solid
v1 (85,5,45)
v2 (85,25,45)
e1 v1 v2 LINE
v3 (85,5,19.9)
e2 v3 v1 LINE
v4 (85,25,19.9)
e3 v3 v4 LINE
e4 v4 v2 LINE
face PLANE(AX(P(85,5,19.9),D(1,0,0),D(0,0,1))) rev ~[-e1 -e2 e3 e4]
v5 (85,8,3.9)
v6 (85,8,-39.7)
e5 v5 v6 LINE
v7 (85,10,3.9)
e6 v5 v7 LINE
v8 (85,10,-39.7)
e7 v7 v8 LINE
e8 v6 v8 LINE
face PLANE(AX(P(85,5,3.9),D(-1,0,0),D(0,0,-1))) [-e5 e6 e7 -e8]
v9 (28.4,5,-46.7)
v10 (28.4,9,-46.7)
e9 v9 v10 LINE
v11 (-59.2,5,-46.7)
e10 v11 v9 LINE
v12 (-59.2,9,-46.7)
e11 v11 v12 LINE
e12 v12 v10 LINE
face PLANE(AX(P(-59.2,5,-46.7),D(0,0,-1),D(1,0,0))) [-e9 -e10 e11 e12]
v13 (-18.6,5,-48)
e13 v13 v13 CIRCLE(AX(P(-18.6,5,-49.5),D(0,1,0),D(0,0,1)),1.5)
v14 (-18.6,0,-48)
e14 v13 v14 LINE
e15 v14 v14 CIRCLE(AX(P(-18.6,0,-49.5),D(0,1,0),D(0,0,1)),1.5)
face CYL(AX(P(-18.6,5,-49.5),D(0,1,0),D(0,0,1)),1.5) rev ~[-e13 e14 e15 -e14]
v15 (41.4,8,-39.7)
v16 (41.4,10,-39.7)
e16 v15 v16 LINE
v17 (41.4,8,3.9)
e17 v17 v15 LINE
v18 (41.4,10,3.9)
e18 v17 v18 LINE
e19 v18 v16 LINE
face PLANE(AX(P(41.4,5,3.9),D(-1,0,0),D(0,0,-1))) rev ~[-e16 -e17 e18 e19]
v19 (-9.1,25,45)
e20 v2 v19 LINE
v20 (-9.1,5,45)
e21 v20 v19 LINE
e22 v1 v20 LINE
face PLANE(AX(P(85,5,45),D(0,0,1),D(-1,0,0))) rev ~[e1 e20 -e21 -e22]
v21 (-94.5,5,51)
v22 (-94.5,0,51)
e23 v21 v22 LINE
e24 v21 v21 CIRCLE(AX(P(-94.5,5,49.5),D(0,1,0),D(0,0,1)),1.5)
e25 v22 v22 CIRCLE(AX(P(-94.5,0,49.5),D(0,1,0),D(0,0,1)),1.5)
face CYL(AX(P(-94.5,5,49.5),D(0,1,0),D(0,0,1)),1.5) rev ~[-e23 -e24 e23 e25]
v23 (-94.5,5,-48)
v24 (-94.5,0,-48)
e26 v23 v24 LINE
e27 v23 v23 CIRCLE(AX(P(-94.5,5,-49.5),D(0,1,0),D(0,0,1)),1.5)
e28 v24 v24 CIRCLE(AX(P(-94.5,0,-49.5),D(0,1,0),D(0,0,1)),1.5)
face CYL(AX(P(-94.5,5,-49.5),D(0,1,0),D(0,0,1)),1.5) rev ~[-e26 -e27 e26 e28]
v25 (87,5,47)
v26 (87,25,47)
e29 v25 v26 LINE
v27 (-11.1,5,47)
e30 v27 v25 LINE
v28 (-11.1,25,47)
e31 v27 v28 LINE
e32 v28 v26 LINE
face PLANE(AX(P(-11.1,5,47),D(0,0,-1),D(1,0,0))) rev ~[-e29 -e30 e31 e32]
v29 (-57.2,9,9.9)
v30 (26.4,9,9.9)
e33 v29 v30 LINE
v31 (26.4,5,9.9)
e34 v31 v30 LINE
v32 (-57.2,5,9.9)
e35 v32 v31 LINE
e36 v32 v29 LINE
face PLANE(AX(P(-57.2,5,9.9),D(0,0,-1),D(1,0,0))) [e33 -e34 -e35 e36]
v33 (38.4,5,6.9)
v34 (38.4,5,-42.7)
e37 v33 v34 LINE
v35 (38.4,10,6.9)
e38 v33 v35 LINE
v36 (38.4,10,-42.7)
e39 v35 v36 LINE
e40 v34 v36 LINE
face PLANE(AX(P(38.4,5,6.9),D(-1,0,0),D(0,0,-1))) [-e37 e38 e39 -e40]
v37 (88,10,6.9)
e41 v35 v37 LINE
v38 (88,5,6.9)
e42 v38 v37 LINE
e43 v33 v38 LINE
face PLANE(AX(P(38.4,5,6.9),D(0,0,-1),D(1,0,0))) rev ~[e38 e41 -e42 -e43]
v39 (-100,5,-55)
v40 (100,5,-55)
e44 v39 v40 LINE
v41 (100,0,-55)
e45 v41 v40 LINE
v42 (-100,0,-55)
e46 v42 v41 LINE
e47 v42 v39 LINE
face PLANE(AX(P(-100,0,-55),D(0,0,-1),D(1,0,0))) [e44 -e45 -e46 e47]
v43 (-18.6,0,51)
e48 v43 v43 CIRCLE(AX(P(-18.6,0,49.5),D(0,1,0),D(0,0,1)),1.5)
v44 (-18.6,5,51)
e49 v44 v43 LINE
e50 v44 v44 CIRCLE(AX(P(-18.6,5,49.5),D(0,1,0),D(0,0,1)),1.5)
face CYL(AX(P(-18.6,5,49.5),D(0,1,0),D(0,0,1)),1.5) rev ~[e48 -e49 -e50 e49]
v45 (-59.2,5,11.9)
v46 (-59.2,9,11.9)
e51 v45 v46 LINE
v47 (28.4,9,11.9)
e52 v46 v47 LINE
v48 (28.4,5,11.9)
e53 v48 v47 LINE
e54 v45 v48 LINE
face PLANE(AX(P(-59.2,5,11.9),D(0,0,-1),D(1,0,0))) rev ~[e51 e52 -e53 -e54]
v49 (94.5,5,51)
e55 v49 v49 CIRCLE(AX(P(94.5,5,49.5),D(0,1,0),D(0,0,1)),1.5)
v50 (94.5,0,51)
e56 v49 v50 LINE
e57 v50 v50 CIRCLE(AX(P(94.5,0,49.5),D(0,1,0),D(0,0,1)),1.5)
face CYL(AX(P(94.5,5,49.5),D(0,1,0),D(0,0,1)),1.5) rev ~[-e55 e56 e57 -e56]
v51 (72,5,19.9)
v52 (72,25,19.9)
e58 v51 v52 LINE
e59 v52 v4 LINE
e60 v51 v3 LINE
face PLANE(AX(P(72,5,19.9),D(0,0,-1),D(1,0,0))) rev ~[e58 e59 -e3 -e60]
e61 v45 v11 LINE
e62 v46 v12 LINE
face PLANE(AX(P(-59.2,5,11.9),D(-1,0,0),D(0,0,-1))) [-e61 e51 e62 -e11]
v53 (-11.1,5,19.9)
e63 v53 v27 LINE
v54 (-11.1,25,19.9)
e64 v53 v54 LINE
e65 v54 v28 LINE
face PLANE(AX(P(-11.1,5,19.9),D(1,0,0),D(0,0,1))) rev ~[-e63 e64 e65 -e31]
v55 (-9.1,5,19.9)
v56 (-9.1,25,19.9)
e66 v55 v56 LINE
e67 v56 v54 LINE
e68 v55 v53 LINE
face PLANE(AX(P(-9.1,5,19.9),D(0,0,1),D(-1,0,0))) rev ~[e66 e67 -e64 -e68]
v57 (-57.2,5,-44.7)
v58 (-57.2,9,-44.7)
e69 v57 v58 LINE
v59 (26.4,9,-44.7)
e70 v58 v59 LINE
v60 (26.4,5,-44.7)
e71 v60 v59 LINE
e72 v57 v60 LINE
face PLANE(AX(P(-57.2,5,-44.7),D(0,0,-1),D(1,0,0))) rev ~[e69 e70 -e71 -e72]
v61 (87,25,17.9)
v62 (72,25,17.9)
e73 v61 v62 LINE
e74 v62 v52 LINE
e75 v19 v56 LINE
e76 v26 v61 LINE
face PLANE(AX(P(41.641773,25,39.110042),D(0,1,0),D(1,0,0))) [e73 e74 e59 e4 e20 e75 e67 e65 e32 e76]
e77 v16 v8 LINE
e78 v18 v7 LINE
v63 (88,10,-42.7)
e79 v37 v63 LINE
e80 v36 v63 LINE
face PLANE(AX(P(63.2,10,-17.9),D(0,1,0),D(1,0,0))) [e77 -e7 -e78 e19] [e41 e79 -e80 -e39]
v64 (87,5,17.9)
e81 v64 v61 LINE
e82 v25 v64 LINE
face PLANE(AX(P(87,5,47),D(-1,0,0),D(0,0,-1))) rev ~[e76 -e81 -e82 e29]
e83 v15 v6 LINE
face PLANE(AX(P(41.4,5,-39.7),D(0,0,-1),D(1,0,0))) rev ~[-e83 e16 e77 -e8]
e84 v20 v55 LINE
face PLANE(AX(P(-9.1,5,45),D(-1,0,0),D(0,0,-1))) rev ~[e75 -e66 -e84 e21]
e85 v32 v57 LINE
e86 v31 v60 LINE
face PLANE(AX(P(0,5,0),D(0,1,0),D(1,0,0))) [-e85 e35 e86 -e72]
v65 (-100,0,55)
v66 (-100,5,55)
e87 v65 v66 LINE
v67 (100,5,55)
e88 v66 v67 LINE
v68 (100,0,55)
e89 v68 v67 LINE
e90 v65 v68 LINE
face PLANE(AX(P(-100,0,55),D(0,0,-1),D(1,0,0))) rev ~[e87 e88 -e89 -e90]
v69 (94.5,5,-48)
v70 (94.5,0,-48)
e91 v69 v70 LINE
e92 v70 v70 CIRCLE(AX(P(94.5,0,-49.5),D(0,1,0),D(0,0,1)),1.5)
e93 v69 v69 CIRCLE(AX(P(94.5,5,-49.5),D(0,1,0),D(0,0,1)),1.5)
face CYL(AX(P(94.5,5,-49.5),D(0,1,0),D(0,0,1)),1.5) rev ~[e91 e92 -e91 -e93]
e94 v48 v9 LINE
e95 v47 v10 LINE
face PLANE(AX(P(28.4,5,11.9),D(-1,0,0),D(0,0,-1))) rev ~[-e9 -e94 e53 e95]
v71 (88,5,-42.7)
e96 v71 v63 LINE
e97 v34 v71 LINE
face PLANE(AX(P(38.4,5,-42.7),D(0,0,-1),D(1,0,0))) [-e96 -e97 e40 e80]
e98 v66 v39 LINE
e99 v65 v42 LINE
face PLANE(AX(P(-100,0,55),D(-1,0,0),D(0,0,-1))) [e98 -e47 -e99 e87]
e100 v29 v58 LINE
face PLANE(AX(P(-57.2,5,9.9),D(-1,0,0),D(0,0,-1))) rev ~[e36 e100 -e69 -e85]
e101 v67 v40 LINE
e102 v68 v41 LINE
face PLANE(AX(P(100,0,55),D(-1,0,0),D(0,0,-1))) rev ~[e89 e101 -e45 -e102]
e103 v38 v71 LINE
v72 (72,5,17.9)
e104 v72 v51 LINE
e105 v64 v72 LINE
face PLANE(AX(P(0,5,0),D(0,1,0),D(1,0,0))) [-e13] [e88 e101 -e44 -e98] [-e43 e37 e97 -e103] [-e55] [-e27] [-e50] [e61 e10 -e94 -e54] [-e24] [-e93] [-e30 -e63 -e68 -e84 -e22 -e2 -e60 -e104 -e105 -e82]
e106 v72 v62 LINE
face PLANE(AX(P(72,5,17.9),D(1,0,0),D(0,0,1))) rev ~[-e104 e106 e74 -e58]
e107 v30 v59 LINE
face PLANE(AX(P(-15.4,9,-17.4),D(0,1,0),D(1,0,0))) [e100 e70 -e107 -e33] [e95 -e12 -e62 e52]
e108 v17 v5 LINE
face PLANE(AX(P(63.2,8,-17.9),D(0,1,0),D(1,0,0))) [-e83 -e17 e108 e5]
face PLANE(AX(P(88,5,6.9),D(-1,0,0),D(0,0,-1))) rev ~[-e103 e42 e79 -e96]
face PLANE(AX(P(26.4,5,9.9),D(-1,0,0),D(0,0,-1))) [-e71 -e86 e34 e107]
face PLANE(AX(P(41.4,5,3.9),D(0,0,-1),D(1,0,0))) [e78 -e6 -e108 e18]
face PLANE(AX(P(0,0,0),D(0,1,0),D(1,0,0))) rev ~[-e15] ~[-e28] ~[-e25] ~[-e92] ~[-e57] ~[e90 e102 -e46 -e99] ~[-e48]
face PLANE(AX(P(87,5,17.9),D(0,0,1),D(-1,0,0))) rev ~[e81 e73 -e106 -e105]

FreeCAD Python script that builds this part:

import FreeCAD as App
import Part
import Sketcher

V = App.Vector


def add_polygon(sketch, points):
    """Adds a closed chain of lines whose ends are joined by coincident constraints."""
    first, n = sketch.GeometryCount, len(points)
    for a, b in zip(points, points[1:] + points[:1]):
        sketch.addGeometry(Part.LineSegment(App.Vector(*a, 0), App.Vector(*b, 0)), False)
    for i in range(n):
        sketch.addConstraint(Sketcher.Constraint("Coincident", first + i, 2, first + (i + 1) % n, 1))

doc = App.newDocument("Part")
params = doc.addObject("Spreadsheet::Sheet", "Params")
for row, (alias, value) in enumerate([
    ("sketch1_width", "200 mm"),
    ("sketch1_height", "110 mm"),
    ("pad1_length", "5 mm"),
    ("sketch2_diameter", "3 mm"),
    ("pocket1_length", "10 mm"),
    ("sketch3_width", "2 mm"),
    ("sketch3_width2", "15 mm"),
    ("sketch3_width3", "13 mm"),
    ("sketch3_width4", "94.1 mm"),
    ("sketch3_height", "25.1 mm"),
    ("pad2_length", "20 mm"),
    ("sketch4_width", "43.6 mm"),
    ("pad3_length", "3 mm"),
    ("sketch5_width", "49.6 mm"),
    ("sketch5_width2", "43.6 mm"),
    ("pad4_length", "5 mm"),
    ("sketch6_width", "87.6 mm"),
    ("sketch6_width2", "83.6 mm"),
    ("sketch6_height", "58.6 mm"),
    ("sketch6_height2", "54.6 mm"),
    ("pad5_length", "4 mm"),
    ("sketch7_diameter", "3 mm"),
    ("pocket2_length", "5 mm"),
], start=1):
    params.set(f"A{row}", alias)
    params.set(f"B{row}", "=" + value)
    params.setAlias(f"B{row}", alias)

body = doc.addObject("PartDesign::Body", "Body")

# Sketch on XZ plane
sketch1 = body.newObject("Sketcher::SketchObject", "Sketch")
sketch1.AttachmentSupport = (doc.getObject("XZ_Plane"), [""])
sketch1.MapMode = "FlatFace"
add_polygon(sketch1, [(-100, -55), (-100, 55), (100, 55), (100, -55)])  # lines 0-3
sketch1.addConstraint(Sketcher.Constraint("Vertical", 0))
sketch1.addConstraint(Sketcher.Constraint("Horizontal", 1))
sketch1.addConstraint(Sketcher.Constraint("Vertical", 2))
sketch1.addConstraint(Sketcher.Constraint("Horizontal", 3))
sketch1.addConstraint(Sketcher.Constraint("Symmetric", 0, 2, 2, 2, -1, 1))
sketch1.addConstraint(Sketcher.Constraint("DistanceX", 1, 1, 1, 2, 200.0))
sketch1.addConstraint(Sketcher.Constraint("DistanceY", 0, 1, 0, 2, 110.0))
sketch1.setExpression("Constraints[9]", "Params.sketch1_width")
sketch1.setExpression("Constraints[10]", "Params.sketch1_height")
pad1 = body.newObject("PartDesign::Pad", "Pad")
pad1.Profile = sketch1
pad1.setExpression("Length", "Params.pad1_length")
pad1.Reversed = True

# Sketch on XZ plane
sketch2 = body.newObject("Sketcher::SketchObject", "Sketch001")
sketch2.AttachmentSupport = (doc.getObject("XZ_Plane"), [""])
sketch2.MapMode = "FlatFace"
sketch2.AttachmentOffset = App.Placement(V(0, 0, -5), App.Rotation())
sketch2.addGeometry(Part.Circle(V(94.5, -49.5, 0), V(0, 0, 1), 1.5), False)
sketch2.addGeometry(Part.Circle(V(-94.5, -49.5, 0), V(0, 0, 1), 1.5), False)
sketch2.addGeometry(Part.Circle(V(-94.5, 49.5, 0), V(0, 0, 1), 1.5), False)
sketch2.addGeometry(Part.Circle(V(94.5, 49.5, 0), V(0, 0, 1), 1.5), False)
sketch2.addConstraint(Sketcher.Constraint("Equal", 0, 1))
sketch2.addConstraint(Sketcher.Constraint("Equal", 1, 2))
sketch2.addConstraint(Sketcher.Constraint("Equal", 2, 3))
sketch2.addConstraint(Sketcher.Constraint("Symmetric", 0, 3, 2, 3, -1, 1))
sketch2.addConstraint(Sketcher.Constraint("Symmetric", 1, 3, 3, 3, -1, 1))
sketch2.addConstraint(Sketcher.Constraint("Symmetric", 0, 3, 1, 3, -2))
sketch2.addConstraint(Sketcher.Constraint("Diameter", 0, 3.0))
sketch2.addConstraint(Sketcher.Constraint("DistanceX", 1, 3, 0, 3, 189.0))
sketch2.addConstraint(Sketcher.Constraint("DistanceY", 1, 3, 2, 3, 99.0))
sketch2.setExpression("Constraints[6]", "Params.sketch2_diameter")
pocket1 = body.newObject("PartDesign::Pocket", "Pocket")
pocket1.Profile = sketch2
pocket1.setExpression("Length", "Params.pocket1_length")
pocket1.Reversed = True

# Sketch on XZ plane
sketch3 = body.newObject("Sketcher::SketchObject", "Sketch002")
sketch3.AttachmentSupport = (doc.getObject("XZ_Plane"), [""])
sketch3.MapMode = "FlatFace"
sketch3.AttachmentOffset = App.Placement(V(0, 0, -5), App.Rotation())
add_polygon(sketch3, [(85, 19.9), (85, 45), (-9.1, 45), (-9.1, 19.9), (-11.1, 19.9), (-11.1, 47), (87, 47), (87, 17.9), (72, 17.9), (72, 19.9)])  # lines 0-9
sketch3.addConstraint(Sketcher.Constraint("Vertical", 0))
sketch3.addConstraint(Sketcher.Constraint("Horizontal", 1))
sketch3.addConstraint(Sketcher.Constraint("Vertical", 2))
sketch3.addConstraint(Sketcher.Constraint("Horizontal", 3))
sketch3.addConstraint(Sketcher.Constraint("Vertical", 4))
sketch3.addConstraint(Sketcher.Constraint("Horizontal", 5))
sketch3.addConstraint(Sketcher.Constraint("Vertical", 6))
sketch3.addConstraint(Sketcher.Constraint("Horizontal", 7))
sketch3.addConstraint(Sketcher.Constraint("Vertical", 8))
sketch3.addConstraint(Sketcher.Constraint("Horizontal", 9))
sketch3.addConstraint(Sketcher.Constraint("Horizontal", 3, 2, 8, 2))
sketch3.addConstraint(Sketcher.Constraint("Equal", 3, 8))
sketch3.addConstraint(Sketcher.Constraint("DistanceX", 3, 2, 3, 1, 2.0))
sketch3.addConstraint(Sketcher.Constraint("DistanceX", 7, 2, 7, 1, 15.0))
sketch3.addConstraint(Sketcher.Constraint("DistanceX", 9, 1, 9, 2, 13.0))
sketch3.addConstraint(Sketcher.Constraint("DistanceX", 1, 2, 1, 1, 94.1))
sketch3.addConstraint(Sketcher.Constraint("DistanceY", 0, 1, 0, 2, 25.1))
sketch3.addConstraint(Sketcher.Constraint("DistanceY", 4, 1, 4, 2, 27.1))
sketch3.addConstraint(Sketcher.Constraint("DistanceX", -1, 1, 0, 2, 85.0))
sketch3.addConstraint(Sketcher.Constraint("DistanceY", -1, 1, 0, 2, 45.0))
sketch3.setExpression("Constraints[22]", "Params.sketch3_width")
sketch3.setExpression("Constraints[23]", "Params.sketch3_width2")
sketch3.setExpression("Constraints[24]", "Params.sketch3_width3")
sketch3.setExpression("Constraints[25]", "Params.sketch3_width4")
sketch3.setExpression("Constraints[26]", "Params.sketch3_height")
pad2 = body.newObject("PartDesign::Pad", "Pad001")
pad2.Profile = sketch3
pad2.setExpression("Length", "Params.pad2_length")
pad2.Reversed = True

# Sketch on XZ plane
sketch4 = body.newObject("Sketcher::SketchObject", "Sketch003")
sketch4.AttachmentSupport = (doc.getObject("XZ_Plane"), [""])
sketch4.MapMode = "FlatFace"
sketch4.AttachmentOffset = App.Placement(V(0, 0, -5), App.Rotation())
add_polygon(sketch4, [(41, -40), (41, 4), (85, 4), (85, -40)])  # lines 0-3
sketch4.addConstraint(Sketcher.Constraint("Vertical", 0))
sketch4.addConstraint(Sketcher.Constraint("Horizontal", 1))
sketch4.addConstraint(Sketcher.Constraint("Vertical", 2))
sketch4.addConstraint(Sketcher.Constraint("Horizontal", 3))
sketch4.addConstraint(Sketcher.Constraint("Equal", 3, 0))
sketch4.addConstraint(Sketcher.Constraint("DistanceX", 1, 1, 1, 2, 43.6))
sketch4.addConstraint(Sketcher.Constraint("DistanceX", -1, 1, 1, 2, 85.0))
sketch4.addConstraint(Sketcher.Constraint("DistanceY", -1, 1, 0, 2, 3.9))
sketch4.setExpression("Constraints[9]", "Params.sketch4_width")
pad3 = body.newObject("PartDesign::Pad", "Pad002")
pad3.Profile = sketch4
pad3.setExpression("Length", "Params.pad3_length")
pad3.Reversed = True

# Sketch on XZ plane
sketch5 = body.newObject("Sketcher::SketchObject", "Sketch004")
sketch5.AttachmentSupport = (doc.getObject("XZ_Plane"), [""])
sketch5.MapMode = "FlatFace"
sketch5.AttachmentOffset = App.Placement(V(0, 0, -5), App.Rotation())
add_polygon(sketch5, [(38, -43), (38, 7), (88, 7), (88, -43)])  # lines 0-3
add_polygon(sketch5, [(85, 4), (41, 4), (41, -40), (85, -40)])  # lines 4-7
sketch5.addConstraint(Sketcher.Constraint("Vertical", 0))
sketch5.addConstraint(Sketcher.Constraint("Horizontal", 1))
sketch5.addConstraint(Sketcher.Constraint("Vertical", 2))
sketch5.addConstraint(Sketcher.Constraint("Horizontal", 3))
sketch5.addConstraint(Sketcher.Constraint("Horizontal", 4))
sketch5.addConstraint(Sketcher.Constraint("Vertical", 5))
sketch5.addConstraint(Sketcher.Constraint("Horizontal", 6))
sketch5.addConstraint(Sketcher.Constraint("Vertical", 7))
sketch5.addConstraint(Sketcher.Constraint("Equal", 3, 0))
sketch5.addConstraint(Sketcher.Constraint("Equal", 6, 5))
sketch5.addConstraint(Sketcher.Constraint("DistanceX", 1, 1, 1, 2, 49.6))
sketch5.addConstraint(Sketcher.Constraint("DistanceX", 4, 2, 4, 1, 43.6))
sketch5.addConstraint(Sketcher.Constraint("DistanceX", -1, 1, 1, 2, 88.0))
sketch5.addConstraint(Sketcher.Constraint("DistanceX", -1, 1, 6, 2, 85.0))
sketch5.addConstraint(Sketcher.Constraint("DistanceY", 4, 2, 0, 2, 3.0))
sketch5.addConstraint(Sketcher.Constraint("DistanceY", -1, 1, 0, 2, 6.9))
sketch5.setExpression("Constraints[18]", "Params.sketch5_width")
sketch5.setExpression("Constraints[19]", "Params.sketch5_width2")
pad4 = body.newObject("PartDesign::Pad", "Pad003")
pad4.Profile = sketch5
pad4.setExpression("Length", "Params.pad4_length")
pad4.Reversed = True

# Sketch on XZ plane
sketch6 = body.newObject("Sketcher::SketchObject", "Sketch005")
sketch6.AttachmentSupport = (doc.getObject("XZ_Plane"), [""])
sketch6.MapMode = "FlatFace"
sketch6.AttachmentOffset = App.Placement(V(0, 0, -5), App.Rotation())
add_polygon(sketch6, [(-59, -47), (-59, 12), (28, 12), (28, -47)])  # lines 0-3
add_polygon(sketch6, [(26, 10), (-57, 10), (-57, -45), (26, -45)])  # lines 4-7
sketch6.addConstraint(Sketcher.Constraint("Vertical", 0))
sketch6.addConstraint(Sketcher.Constraint("Horizontal", 1))
sketch6.addConstraint(Sketcher.Constraint("Vertical", 2))
sketch6.addConstraint(Sketcher.Constraint("Horizontal", 3))
sketch6.addConstraint(Sketcher.Constraint("Horizontal", 4))
sketch6.addConstraint(Sketcher.Constraint("Vertical", 5))
sketch6.addConstraint(Sketcher.Constraint("Horizontal", 6))
sketch6.addConstraint(Sketcher.Constraint("Vertical", 7))
sketch6.addConstraint(Sketcher.Constraint("DistanceX", 1, 1, 1, 2, 87.6))
sketch6.addConstraint(Sketcher.Constraint("DistanceX", 4, 2, 4, 1, 83.6))
sketch6.addConstraint(Sketcher.Constraint("DistanceY", 0, 1, 0, 2, 58.6))
sketch6.addConstraint(Sketcher.Constraint("DistanceY", 5, 2, 5, 1, 54.6))
sketch6.addConstraint(Sketcher.Constraint("DistanceX", 0, 2, 4, 2, 2.0))
sketch6.addConstraint(Sketcher.Constraint("DistanceY", 4, 2, 0, 2, 2.0))
sketch6.addConstraint(Sketcher.Constraint("DistanceX", 0, 2, -1, 1, 59.2))
sketch6.addConstraint(Sketcher.Constraint("DistanceY", -1, 1, 0, 2, 11.9))
sketch6.setExpression("Constraints[16]", "Params.sketch6_width")
sketch6.setExpression("Constraints[17]", "Params.sketch6_width2")
sketch6.setExpression("Constraints[18]", "Params.sketch6_height")
sketch6.setExpression("Constraints[19]", "Params.sketch6_height2")
pad5 = body.newObject("PartDesign::Pad", "Pad004")
pad5.Profile = sketch6
pad5.setExpression("Length", "Params.pad5_length")
pad5.Reversed = True

# Sketch on XZ plane
sketch7 = body.newObject("Sketcher::SketchObject", "Sketch006")
sketch7.AttachmentSupport = (doc.getObject("XZ_Plane"), [""])
sketch7.MapMode = "FlatFace"
sketch7.AttachmentOffset = App.Placement(V(0, 0, -5), App.Rotation())
sketch7.addGeometry(Part.Circle(V(-18.6, 49.5, 0), V(0, 0, 1), 1.5), False)
sketch7.addGeometry(Part.Circle(V(-18.6, -49.5, 0), V(0, 0, 1), 1.5), False)
sketch7.addConstraint(Sketcher.Constraint("Equal", 0, 1))
sketch7.addConstraint(Sketcher.Constraint("Symmetric", 0, 3, 1, 3, -1))
sketch7.addConstraint(Sketcher.Constraint("Diameter", 0, 3.0))
sketch7.addConstraint(Sketcher.Constraint("DistanceY", 1, 3, 0, 3, 99.0))
sketch7.addConstraint(Sketcher.Constraint("DistanceX", 0, 3, -1, 1, 18.6))
sketch7.setExpression("Constraints[2]", "Params.sketch7_diameter")
pocket2 = body.newObject("PartDesign::Pocket", "Pocket001")
pocket2.Profile = sketch7
pocket2.setExpression("Length", "Params.pocket2_length")
pocket2.Reversed = True

doc.recompute()
